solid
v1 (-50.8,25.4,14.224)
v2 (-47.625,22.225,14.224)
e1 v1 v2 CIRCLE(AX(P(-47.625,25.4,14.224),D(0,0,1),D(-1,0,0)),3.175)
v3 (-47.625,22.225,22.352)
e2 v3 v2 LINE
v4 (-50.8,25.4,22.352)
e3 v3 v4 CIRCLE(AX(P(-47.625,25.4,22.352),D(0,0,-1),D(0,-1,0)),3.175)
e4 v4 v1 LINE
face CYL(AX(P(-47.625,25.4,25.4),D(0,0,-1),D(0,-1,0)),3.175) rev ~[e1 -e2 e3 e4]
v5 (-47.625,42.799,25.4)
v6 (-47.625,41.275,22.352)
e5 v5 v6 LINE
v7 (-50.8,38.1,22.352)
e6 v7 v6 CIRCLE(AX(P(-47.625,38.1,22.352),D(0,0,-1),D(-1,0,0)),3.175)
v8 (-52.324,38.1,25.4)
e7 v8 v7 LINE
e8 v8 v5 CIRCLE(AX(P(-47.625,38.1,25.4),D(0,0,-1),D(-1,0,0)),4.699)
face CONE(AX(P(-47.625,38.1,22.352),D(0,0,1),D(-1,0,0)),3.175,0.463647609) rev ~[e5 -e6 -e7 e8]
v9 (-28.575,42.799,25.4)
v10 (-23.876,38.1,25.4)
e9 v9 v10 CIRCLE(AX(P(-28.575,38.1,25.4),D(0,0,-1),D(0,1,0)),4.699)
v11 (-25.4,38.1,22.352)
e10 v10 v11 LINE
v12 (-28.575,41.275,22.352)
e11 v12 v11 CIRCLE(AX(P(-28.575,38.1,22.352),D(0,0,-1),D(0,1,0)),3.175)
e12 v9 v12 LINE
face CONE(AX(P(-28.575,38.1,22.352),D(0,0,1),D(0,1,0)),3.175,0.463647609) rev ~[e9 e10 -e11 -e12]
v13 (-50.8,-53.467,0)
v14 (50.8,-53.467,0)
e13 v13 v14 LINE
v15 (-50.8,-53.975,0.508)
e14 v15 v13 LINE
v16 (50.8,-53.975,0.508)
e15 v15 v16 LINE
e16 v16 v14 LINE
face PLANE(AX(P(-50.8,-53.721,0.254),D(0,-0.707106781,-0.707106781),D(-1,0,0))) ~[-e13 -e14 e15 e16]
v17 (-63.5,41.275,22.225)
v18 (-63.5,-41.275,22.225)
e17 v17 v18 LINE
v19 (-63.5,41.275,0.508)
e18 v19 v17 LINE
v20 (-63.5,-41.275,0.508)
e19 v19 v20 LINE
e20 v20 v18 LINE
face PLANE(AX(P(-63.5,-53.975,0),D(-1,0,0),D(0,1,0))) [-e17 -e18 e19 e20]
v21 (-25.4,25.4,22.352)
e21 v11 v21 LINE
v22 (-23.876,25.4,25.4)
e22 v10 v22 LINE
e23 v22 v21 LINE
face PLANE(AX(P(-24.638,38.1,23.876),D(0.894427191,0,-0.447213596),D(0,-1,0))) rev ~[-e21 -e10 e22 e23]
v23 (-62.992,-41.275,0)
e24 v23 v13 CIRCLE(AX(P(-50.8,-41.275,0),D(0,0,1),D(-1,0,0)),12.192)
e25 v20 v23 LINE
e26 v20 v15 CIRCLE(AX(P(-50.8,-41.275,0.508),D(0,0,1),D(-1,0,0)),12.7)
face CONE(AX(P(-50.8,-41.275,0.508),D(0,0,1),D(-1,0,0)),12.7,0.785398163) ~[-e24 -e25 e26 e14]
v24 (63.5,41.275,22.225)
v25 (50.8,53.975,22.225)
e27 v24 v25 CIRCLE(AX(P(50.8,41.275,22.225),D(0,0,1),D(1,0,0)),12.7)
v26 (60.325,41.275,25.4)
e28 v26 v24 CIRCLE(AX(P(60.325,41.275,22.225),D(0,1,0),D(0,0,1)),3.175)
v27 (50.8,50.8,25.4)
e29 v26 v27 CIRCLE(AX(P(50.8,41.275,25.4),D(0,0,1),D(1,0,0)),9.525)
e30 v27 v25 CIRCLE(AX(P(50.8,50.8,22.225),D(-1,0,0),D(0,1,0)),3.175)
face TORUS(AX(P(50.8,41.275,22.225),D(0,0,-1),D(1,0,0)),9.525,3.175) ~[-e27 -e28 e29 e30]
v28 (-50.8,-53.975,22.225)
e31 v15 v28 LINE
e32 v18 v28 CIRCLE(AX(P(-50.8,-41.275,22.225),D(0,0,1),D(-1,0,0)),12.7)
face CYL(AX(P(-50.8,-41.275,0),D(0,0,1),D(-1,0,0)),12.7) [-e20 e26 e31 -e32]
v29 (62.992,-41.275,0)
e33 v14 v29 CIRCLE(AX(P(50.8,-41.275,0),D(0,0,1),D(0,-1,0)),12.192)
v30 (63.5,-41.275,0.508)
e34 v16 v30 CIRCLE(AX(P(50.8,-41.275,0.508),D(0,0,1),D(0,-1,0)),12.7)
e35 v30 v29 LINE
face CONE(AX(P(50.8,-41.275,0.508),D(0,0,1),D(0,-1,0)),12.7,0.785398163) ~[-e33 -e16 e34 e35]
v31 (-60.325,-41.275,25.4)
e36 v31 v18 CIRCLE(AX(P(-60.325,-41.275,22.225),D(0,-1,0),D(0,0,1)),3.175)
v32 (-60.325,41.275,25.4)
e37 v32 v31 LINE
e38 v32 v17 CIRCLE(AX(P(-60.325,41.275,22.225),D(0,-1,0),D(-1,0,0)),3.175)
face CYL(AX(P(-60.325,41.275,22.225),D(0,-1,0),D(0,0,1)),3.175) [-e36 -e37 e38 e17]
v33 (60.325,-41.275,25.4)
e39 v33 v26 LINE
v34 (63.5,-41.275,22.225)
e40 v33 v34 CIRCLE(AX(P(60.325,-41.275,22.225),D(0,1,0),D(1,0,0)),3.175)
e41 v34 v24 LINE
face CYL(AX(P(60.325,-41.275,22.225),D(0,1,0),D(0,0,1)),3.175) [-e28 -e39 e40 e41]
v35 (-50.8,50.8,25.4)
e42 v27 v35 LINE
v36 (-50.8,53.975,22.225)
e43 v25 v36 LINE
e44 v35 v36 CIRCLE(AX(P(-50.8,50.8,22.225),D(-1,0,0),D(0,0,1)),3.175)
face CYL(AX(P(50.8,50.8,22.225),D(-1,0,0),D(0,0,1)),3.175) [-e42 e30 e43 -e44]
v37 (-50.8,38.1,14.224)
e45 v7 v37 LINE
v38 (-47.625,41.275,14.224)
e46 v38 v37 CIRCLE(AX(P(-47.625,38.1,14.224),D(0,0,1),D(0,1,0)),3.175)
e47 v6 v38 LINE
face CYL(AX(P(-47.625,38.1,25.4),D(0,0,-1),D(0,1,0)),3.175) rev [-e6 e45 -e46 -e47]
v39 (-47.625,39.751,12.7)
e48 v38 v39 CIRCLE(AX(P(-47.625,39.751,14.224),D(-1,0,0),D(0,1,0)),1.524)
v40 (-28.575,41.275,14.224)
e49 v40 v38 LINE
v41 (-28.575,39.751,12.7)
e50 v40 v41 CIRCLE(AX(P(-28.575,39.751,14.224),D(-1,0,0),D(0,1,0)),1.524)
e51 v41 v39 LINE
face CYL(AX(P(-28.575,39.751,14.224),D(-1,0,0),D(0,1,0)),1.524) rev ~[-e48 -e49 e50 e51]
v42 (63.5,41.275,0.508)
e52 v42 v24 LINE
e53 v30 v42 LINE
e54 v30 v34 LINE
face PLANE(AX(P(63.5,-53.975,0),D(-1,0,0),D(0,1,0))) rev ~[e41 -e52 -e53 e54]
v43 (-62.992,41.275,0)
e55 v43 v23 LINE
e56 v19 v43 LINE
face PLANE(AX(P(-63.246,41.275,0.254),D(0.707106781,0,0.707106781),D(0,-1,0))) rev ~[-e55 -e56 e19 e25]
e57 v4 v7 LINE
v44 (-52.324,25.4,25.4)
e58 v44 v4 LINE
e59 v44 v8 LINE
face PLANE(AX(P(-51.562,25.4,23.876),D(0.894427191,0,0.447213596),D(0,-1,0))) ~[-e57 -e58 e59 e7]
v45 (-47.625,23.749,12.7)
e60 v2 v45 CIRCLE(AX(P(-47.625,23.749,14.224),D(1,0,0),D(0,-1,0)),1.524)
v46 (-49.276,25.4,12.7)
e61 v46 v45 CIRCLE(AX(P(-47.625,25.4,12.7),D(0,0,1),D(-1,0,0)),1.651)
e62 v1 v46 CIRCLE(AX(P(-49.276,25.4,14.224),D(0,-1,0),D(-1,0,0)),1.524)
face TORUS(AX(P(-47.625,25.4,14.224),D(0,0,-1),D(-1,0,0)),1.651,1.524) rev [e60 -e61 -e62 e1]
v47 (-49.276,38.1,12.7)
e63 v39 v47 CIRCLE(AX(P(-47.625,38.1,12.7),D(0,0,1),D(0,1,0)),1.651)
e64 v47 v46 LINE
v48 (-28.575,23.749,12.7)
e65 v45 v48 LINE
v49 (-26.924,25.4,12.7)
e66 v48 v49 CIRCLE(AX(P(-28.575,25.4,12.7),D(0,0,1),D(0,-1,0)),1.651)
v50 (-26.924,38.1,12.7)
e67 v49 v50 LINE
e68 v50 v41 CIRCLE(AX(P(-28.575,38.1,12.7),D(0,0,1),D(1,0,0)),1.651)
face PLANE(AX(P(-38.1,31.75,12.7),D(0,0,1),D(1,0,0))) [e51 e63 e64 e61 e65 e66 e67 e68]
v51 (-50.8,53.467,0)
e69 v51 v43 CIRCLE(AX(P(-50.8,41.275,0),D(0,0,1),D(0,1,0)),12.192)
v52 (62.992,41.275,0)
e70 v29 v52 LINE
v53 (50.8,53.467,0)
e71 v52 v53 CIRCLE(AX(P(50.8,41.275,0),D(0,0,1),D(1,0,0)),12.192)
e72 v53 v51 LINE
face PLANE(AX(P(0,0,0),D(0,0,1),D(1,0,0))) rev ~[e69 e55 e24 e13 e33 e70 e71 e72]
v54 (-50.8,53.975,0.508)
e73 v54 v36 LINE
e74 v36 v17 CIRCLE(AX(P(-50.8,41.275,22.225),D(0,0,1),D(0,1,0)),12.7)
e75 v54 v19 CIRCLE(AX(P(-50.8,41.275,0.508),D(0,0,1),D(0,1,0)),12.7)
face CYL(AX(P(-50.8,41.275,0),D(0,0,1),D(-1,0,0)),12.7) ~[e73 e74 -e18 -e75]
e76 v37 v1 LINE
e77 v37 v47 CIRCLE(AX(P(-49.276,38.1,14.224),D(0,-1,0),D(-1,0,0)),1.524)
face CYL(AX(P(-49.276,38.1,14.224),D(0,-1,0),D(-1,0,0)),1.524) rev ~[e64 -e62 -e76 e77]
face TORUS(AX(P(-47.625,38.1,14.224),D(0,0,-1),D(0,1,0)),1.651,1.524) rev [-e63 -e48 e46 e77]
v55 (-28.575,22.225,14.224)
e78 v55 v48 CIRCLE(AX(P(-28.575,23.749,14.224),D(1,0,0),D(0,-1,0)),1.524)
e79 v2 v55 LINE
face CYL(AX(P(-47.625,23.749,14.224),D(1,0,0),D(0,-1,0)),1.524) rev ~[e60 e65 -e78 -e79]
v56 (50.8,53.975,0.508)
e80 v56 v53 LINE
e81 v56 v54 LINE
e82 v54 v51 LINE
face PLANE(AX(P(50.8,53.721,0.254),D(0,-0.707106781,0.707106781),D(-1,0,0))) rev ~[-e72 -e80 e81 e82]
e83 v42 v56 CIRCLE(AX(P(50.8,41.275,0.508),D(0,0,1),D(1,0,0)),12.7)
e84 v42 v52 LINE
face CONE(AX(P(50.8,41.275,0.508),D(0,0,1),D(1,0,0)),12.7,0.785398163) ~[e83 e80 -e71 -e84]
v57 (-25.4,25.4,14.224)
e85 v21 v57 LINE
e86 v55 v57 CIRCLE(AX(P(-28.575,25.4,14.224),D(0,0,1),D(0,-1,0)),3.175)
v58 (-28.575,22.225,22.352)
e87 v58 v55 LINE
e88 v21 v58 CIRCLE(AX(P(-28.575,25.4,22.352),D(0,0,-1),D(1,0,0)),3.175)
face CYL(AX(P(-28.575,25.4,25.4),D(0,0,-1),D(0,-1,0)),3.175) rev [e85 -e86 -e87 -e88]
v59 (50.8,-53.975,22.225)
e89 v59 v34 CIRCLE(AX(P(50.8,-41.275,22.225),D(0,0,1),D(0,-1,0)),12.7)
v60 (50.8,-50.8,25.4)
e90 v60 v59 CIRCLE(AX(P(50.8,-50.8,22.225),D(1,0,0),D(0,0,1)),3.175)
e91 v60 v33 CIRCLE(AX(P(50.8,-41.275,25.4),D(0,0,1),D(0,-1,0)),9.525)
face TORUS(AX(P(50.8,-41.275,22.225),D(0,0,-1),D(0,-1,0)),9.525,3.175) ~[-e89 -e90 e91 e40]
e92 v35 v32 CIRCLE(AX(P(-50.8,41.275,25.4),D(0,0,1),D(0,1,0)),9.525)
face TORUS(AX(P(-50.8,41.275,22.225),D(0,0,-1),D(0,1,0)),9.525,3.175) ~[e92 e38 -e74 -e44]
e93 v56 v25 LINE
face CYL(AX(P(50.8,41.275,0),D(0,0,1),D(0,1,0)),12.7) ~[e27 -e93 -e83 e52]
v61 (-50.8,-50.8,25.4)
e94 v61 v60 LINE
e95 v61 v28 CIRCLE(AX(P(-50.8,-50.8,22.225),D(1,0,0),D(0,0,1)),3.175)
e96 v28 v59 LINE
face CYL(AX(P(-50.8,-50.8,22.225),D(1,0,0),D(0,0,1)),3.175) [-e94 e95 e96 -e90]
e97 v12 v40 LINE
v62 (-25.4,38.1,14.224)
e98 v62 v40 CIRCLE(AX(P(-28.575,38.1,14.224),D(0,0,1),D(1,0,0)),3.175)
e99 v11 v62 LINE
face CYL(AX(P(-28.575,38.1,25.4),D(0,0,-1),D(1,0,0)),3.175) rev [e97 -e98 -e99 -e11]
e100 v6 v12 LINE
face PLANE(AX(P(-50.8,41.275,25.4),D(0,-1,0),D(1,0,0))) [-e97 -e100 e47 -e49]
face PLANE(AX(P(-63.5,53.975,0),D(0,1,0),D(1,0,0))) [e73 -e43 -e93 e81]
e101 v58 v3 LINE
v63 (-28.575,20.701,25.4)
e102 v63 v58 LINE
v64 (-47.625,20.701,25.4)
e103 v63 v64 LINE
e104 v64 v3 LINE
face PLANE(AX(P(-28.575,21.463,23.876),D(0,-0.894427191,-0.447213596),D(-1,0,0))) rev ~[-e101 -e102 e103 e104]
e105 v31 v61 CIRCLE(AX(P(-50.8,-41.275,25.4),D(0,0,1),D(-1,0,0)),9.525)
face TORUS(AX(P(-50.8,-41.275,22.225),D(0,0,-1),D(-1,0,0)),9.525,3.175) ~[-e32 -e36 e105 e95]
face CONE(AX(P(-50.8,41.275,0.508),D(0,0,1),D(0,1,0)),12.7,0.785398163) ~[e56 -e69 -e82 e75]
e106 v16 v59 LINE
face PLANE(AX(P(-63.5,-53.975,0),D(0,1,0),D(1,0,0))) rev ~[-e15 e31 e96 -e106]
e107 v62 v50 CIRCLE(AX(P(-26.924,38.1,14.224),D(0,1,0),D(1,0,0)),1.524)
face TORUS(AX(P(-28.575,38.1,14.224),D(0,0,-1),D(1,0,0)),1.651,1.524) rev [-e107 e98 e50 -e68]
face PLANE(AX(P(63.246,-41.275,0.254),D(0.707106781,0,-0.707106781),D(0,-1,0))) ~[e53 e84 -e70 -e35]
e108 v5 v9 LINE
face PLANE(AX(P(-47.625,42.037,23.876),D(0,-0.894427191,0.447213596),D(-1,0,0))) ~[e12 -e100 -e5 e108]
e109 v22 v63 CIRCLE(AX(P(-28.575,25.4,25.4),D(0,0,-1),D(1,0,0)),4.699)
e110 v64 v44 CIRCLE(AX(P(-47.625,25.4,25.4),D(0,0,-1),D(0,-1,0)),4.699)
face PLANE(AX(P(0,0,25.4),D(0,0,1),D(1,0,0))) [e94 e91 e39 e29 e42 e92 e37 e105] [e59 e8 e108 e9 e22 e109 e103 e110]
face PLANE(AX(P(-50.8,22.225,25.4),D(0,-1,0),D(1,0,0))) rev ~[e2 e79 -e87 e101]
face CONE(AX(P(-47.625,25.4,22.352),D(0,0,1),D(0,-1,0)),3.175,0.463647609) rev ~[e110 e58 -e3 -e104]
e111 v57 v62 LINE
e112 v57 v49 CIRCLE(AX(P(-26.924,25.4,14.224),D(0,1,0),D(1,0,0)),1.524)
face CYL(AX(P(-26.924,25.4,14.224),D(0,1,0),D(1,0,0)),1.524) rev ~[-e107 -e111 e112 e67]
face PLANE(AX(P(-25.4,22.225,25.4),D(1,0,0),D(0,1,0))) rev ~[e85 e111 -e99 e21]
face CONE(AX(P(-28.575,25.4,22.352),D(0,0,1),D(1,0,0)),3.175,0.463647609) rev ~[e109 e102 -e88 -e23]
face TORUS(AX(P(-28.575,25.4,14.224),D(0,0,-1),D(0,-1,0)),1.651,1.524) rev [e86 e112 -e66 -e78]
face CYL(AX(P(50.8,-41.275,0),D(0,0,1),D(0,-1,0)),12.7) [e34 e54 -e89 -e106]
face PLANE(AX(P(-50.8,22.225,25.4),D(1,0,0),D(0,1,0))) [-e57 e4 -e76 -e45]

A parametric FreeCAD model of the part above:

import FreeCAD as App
import Part
import Sketcher
Q = App.Units.Quantity


def edges_at(feature, points):
    """Names of the edges that pass closest to the given points."""
    edges = feature.Shape.Edges
    near = lambda p: min(range(len(edges)), key=lambda i: edges[i].distToShape(Part.Vertex(*p))[0])
    return sorted({f"Edge{near(p) + 1}" for p in points})


def add_polygon(sketch, points):
    """Adds a closed chain of lines whose ends are joined by coincident constraints."""
    first, n = sketch.GeometryCount, len(points)
    for a, b in zip(points, points[1:] + points[:1]):
        sketch.addGeometry(Part.LineSegment(App.Vector(*a, 0), App.Vector(*b, 0)), False)
    for i in range(n):
        sketch.addConstraint(Sketcher.Constraint("Coincident", first + i, 2, first + (i + 1) % n, 1))

doc = App.newDocument("Part")
body = doc.addObject("PartDesign::Body", "Body")

sketch1 = body.newObject("Sketcher::SketchObject", "Sketch")
sketch1.AttachmentSupport = (doc.getObject("XY_Plane"), [""])
sketch1.MapMode = "FlatFace"
add_polygon(sketch1, [(-64, 54), (-64, -54), (64, -54), (64, 54)])
sketch1.addConstraint([
    Sketcher.Constraint("Vertical", 0),
    Sketcher.Constraint("Horizontal", 1),
    Sketcher.Constraint("Vertical", 2),
    Sketcher.Constraint("Horizontal", 3),
    Sketcher.Constraint("Symmetric", 0, 2, 2, 2, -1, 1),
    Sketcher.Constraint("DistanceX", 1, 1, 1, 2, Q("5 in")),
    Sketcher.Constraint("DistanceY", 0, 2, 0, 1, Q("4.25 in")),
])
pad1 = body.newObject("PartDesign::Pad", "Pad")
pad1.Profile = sketch1
pad1.Length = Q("1 in")

sketch2 = body.newObject("Sketcher::SketchObject", "Sketch001")
sketch2.AttachmentSupport = (doc.getObject("XY_Plane"), [""])
sketch2.MapMode = "FlatFace"
sketch2.AttachmentOffset = App.Placement(App.Vector(0, 0, 1 * 25.4), App.Rotation())
add_polygon(sketch2, [(-51, 41), (-51, 22), (-25, 22), (-25, 41)])
sketch2.addConstraint([
    Sketcher.Constraint("Vertical", 0),
    Sketcher.Constraint("Horizontal", 1),
    Sketcher.Constraint("Vertical", 2),
    Sketcher.Constraint("Horizontal", 3),
    Sketcher.Constraint("DistanceX", 1, 1, 1, 2, Q("1 in")),
    Sketcher.Constraint("DistanceX", 0, 2, -1, 1, Q("2 in")),
    Sketcher.Constraint("DistanceY", 0, 2, 0, 1, Q("0.75 in")),
    Sketcher.Constraint("DistanceY", -1, 1, 0, 2, Q("0.875 in")),
])
pocket1 = body.newObject("PartDesign::Pocket", "Pocket")
pocket1.Profile = sketch2
pocket1.Length = Q("0.5 in")
doc.recompute()

fillet = body.newObject("PartDesign::Fillet", "Fillet")
fillet.Base = (pocket1, edges_at(pocket1, [
    (-50.8, 41.275, 19.05),
    (-50.8, 22.225, 19.05),
    (-25.4, 22.225, 19.05),
    (-25.4, 41.275, 19.05),
]))
fillet.Radius = Q("0.125 in")
doc.recompute()

fillet2 = body.newObject("PartDesign::Fillet", "Fillet001")
fillet2.Base = (fillet, edges_at(fillet, [(-38.1, 22.225, 12.7)]))
fillet2.Radius = Q("0.06 in")
doc.recompute()

fillet3 = body.newObject("PartDesign::Fillet", "Fillet002")
fillet3.Base = (fillet2, edges_at(fillet2, [
    (63.5, -53.975, 12.7),
    (63.5, 53.975, 12.7),
    (-63.5, -53.975, 12.7),
    (-63.5, 53.975, 12.7),
]))
fillet3.Radius = Q("0.5 in")
doc.recompute()

fillet4 = body.newObject("PartDesign::Fillet", "Fillet003")
fillet4.Base = (fillet3, edges_at(fillet3, [(0, -53.975, 25.4)]))
fillet4.Radius = Q("0.125 in")
doc.recompute()

chamfer = body.newObject("PartDesign::Chamfer", "Chamfer")
chamfer.Base = (fillet4, edges_at(fillet4, [(0, -53.975, 0)]))
chamfer.Size = Q("0.02 in")
doc.recompute()

chamfer2 = body.newObject("PartDesign::Chamfer", "Chamfer001")
chamfer2.Base = (chamfer, edges_at(chamfer, [
    (-38.1, 41.275, 25.4),
    (-50.8, 38.1, 19.812),
    (-50.8, 31.75, 14.224),
    (-50.8, 31.75, 25.4),
    (-50.8, 25.4, 19.812),
    (-47.625, 41.275, 19.812),
    (-49.87, 40.345, 14.224),
    (-49.87, 40.345, 25.4),
    (-28.575, 41.275, 19.812),
    (-38.1, 41.275, 14.224),
    (-26.33, 40.345, 14.224),
    (-26.33, 40.345, 25.4),
    (-25.4, 38.1, 19.812),
    (-25.4, 25.4, 19.812),
    (-25.4, 31.75, 14.224),
    (-25.4, 31.75, 25.4),
    (-26.33, 23.155, 14.224),
    (-47.625, 22.225, 19.812),
    (-38.1, 22.225, 14.224),
    (-38.1, 22.225, 25.4),
    (-28.575, 22.225, 19.812),
    (-49.87, 23.155, 14.224),
    (-49.87, 23.155, 25.4),
]))
chamfer2.ChamferType = "Two distances"
chamfer2.Size = Q("0.06 in")
chamfer2.Size2 = Q("0.12 in")

doc.recompute()
